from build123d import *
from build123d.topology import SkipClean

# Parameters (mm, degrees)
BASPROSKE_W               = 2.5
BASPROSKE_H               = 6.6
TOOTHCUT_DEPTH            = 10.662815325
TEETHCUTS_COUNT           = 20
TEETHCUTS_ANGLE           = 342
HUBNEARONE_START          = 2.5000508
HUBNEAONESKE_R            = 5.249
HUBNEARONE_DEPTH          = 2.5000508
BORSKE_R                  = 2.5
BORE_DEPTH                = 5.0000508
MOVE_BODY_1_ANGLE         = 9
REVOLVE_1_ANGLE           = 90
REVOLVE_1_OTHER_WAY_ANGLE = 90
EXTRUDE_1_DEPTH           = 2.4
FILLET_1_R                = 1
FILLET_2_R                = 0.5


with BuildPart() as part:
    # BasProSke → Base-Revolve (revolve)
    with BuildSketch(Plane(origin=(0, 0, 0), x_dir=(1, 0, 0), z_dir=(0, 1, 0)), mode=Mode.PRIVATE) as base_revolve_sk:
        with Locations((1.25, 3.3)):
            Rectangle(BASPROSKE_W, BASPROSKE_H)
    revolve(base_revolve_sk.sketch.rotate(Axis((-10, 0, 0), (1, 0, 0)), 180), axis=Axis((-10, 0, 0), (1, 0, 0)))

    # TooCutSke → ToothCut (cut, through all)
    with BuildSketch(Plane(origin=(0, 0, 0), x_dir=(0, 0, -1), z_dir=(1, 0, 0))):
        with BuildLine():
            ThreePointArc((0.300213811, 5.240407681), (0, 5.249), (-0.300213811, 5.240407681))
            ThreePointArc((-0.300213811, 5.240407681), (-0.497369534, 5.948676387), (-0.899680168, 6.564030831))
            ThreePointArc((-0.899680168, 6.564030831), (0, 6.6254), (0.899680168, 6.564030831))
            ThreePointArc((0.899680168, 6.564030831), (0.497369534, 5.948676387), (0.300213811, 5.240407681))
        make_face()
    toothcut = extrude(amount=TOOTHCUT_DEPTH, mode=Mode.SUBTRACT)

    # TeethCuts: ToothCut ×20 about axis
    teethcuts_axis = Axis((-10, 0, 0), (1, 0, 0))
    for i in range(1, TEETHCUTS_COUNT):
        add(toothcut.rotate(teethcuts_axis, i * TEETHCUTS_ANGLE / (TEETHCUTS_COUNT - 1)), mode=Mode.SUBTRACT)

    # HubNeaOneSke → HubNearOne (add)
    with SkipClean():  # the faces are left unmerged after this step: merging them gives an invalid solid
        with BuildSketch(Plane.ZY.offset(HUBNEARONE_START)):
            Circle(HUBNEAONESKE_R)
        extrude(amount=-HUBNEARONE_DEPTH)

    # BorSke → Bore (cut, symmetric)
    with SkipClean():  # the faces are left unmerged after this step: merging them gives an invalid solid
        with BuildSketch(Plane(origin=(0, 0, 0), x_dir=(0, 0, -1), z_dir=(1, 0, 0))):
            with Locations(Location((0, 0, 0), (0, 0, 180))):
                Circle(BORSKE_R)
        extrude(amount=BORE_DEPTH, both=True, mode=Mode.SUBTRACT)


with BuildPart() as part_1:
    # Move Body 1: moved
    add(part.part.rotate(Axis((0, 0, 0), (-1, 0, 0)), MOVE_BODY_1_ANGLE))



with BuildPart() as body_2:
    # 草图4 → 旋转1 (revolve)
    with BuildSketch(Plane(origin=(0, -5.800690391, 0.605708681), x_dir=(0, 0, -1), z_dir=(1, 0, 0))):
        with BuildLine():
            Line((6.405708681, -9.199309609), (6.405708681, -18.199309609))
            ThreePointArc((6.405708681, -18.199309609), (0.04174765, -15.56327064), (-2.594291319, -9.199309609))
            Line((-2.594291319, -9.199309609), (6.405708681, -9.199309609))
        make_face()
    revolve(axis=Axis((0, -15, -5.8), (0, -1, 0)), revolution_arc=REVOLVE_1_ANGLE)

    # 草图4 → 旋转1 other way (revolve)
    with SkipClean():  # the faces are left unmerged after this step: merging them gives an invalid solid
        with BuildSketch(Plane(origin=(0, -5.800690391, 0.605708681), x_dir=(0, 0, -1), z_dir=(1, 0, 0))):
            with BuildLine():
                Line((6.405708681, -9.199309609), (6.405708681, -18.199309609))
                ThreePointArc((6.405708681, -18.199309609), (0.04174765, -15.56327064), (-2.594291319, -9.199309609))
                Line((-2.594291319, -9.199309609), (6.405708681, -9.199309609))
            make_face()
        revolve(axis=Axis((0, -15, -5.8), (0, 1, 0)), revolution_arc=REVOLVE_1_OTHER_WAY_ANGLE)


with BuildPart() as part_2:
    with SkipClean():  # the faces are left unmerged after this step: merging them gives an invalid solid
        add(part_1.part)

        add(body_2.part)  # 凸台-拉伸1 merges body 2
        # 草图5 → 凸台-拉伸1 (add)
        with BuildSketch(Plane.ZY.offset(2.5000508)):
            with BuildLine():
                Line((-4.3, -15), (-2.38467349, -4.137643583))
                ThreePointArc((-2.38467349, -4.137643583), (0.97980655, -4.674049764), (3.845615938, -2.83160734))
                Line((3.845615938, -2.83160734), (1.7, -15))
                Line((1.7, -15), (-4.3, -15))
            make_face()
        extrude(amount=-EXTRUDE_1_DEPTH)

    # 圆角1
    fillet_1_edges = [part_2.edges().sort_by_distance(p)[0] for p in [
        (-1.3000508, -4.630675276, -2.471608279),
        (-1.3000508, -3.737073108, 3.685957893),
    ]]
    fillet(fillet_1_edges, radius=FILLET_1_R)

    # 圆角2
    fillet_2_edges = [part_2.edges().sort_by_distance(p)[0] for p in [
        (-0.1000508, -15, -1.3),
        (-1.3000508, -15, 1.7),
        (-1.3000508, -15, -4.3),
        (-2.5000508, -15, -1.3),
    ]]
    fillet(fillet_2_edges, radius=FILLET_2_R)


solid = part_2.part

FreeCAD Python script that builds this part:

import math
import FreeCAD as App
import Part
import Sketcher
Q = App.Units.Quantity


def edges_at(feature, points):
    """Names of the edges that pass closest to the given points."""
    edges = feature.Shape.Edges
    near = lambda p: min(range(len(edges)), key=lambda i: edges[i].distToShape(Part.Vertex(*p))[0])
    return sorted({f"Edge{near(p) + 1}" for p in points})

doc = App.newDocument("Part")
body = doc.addObject("PartDesign::Body", "Body")

sketch1 = body.newObject("Sketcher::SketchObject", "Sketch")
sketch1.AttachmentSupport = (doc.getObject("XZ_Plane"), [""])
sketch1.MapMode = "FlatFace"
sketch1.addGeometry([
    Part.LineSegment(App.Vector(0, -6.6, 0), App.Vector(0, 0, 0)),
    Part.LineSegment(App.Vector(0, 0, 0), App.Vector(2.5, 0, 0)),
    Part.LineSegment(App.Vector(2.5, 0, 0), App.Vector(2.5, -6.6, 0)),
    Part.LineSegment(App.Vector(2.5, -6.6, 0), App.Vector(0, -6.6, 0)),
], False)
sketch1.addConstraint([
    Sketcher.Constraint("Coincident", 0, 2, 1, 1),
    Sketcher.Constraint("Coincident", 1, 2, 2, 1),
    Sketcher.Constraint("Coincident", 2, 2, 3, 1),
    Sketcher.Constraint("Coincident", 3, 2, 0, 1),
    Sketcher.Constraint("Vertical", 0),
    Sketcher.Constraint("Horizontal", 1),
    Sketcher.Constraint("Vertical", 2),
    Sketcher.Constraint("Horizontal", 3),
    Sketcher.Constraint("Coincident", 0, 2, -1, 1),
    Sketcher.Constraint("DistanceX", 1, 1, 1, 2, Q("2.5 mm")),
    Sketcher.Constraint("DistanceY", 0, 1, 0, 2, Q("6.6 mm")),
])
revolution = body.newObject("PartDesign::Revolution", "Revolution")
revolution.Profile = sketch1
revolution.ReferenceAxis = (sketch1, ["H_Axis"])
revolution.Angle = 360

sketch2 = body.newObject("Sketcher::SketchObject", "Sketch001")
sketch2.AttachmentSupport = (doc.getObject("YZ_Plane"), [""])
sketch2.MapMode = "FlatFace"
sketch2.addGeometry([
    Part.ArcOfCircle(Part.Circle(App.Vector(0, 0, 0), App.Vector(0, 0, 1), 5.2), math.radians(-3.28), math.radians(3.28)),
    Part.ArcOfCircle(Part.Circle(App.Vector(5, -2.7, 0), App.Vector(0, 0, 1), 2.4), math.radians(48), math.radians(83)),
    Part.ArcOfCircle(Part.Circle(App.Vector(0, 0, 0), App.Vector(0, 0, 1), 6.6), math.radians(-7.8), math.radians(7.8)),
    Part.ArcOfCircle(Part.Circle(App.Vector(5, 2.7, 0), App.Vector(0, 0, 1), 2.4), math.radians(-83), math.radians(-48)),
], False)
sketch2.addConstraint([
    Sketcher.Constraint("Coincident", 0, 1, 1, 2),
    Sketcher.Constraint("Coincident", 1, 1, 2, 1),
    Sketcher.Constraint("Coincident", 2, 2, 3, 2),
    Sketcher.Constraint("Coincident", 3, 1, 0, 2),
    Sketcher.Constraint("Coincident", 0, 3, -1, 1),
    Sketcher.Constraint("Coincident", 2, 3, -1, 1),
    Sketcher.Constraint("Equal", 1, 3),
    Sketcher.Constraint("Symmetric", 1, 3, 3, 3, -1),
    Sketcher.Constraint("Radius", 1, Q("2.4 mm")),
    Sketcher.Constraint("Radius", 0, Q("5.249 mm")),
    Sketcher.Constraint("Radius", 2, Q("6.6254 mm")),
    Sketcher.Constraint("DistanceX", -1, 1, 1, 1, Q("6.564031 mm")),
    Sketcher.Constraint("DistanceY", 1, 3, 0, 1, Q("2.38339 mm")),
])
pocket1 = body.newObject("PartDesign::Pocket", "Pocket")
pocket1.Profile = sketch2
pocket1.Type = "ThroughAll"
pocket1.Reversed = True
doc.recompute()

polarpattern = body.newObject("PartDesign::PolarPattern", "PolarPattern")
polarpattern.Originals = [pocket1]
polarpattern.Axis = (doc.getObject("X_Axis"), [""])
polarpattern.Angle = 360
polarpattern.Occurrences = 20
body.Tip = polarpattern

sketch3 = body.newObject("Sketcher::SketchObject", "Sketch002")
sketch3.AttachmentSupport = (doc.getObject("YZ_Plane"), [""])
sketch3.MapMode = "FlatFace"
sketch3.AttachmentOffset = App.Placement(App.Vector(0, 0, -2.500051), App.Rotation())
sketch3.addGeometry(Part.Circle(App.Vector(0, 0, 0), App.Vector(0, 0, 1), 5), False)
sketch3.addConstraint([
    Sketcher.Constraint("Coincident", 0, 3, -1, 1),
    Sketcher.Constraint("Diameter", 0, Q("10.498 mm")),
])
pad1 = body.newObject("PartDesign::Pad", "Pad")
pad1.Profile = sketch3
pad1.Length = 2.500051

sketch4 = body.newObject("Sketcher::SketchObject", "Sketch003")
sketch4.AttachmentSupport = (doc.getObject("YZ_Plane"), [""])
sketch4.MapMode = "FlatFace"
sketch4.addGeometry(Part.Circle(App.Vector(0, 0, 0), App.Vector(0, 0, 1), 2.5), False)
sketch4.addConstraint([
    Sketcher.Constraint("Coincident", 0, 3, -1, 1),
    Sketcher.Constraint("Diameter", 0, Q("5 mm")),
])
pocket2 = body.newObject("PartDesign::Pocket", "Pocket001")
pocket2.Profile = sketch4
pocket2.Length = 10.000102
pocket2.Midplane = True
body2 = doc.addObject("PartDesign::Body", "Body001")
doc.recompute()

body.Placement = App.Placement(App.Vector(0, 0, 0), App.Rotation(App.Vector(-1, 0, 0), 9))
boolean = body2.newObject("PartDesign::Boolean", "Boolean")
boolean.Type = "Fuse"
boolean.addObjects([body])
body3 = doc.addObject("PartDesign::Body", "Body002")

sketch5 = body3.newObject("Sketcher::SketchObject", "Sketch004")
sketch5.AttachmentSupport = (doc.getObject("YZ_Plane002"), [""])
sketch5.MapMode = "FlatFace"
sketch5.addGeometry([
    Part.LineSegment(App.Vector(-24, -6, 0), App.Vector(-15, -6, 0)),
    Part.LineSegment(App.Vector(-15, -6, 0), App.Vector(-15, 3, 0)),
    Part.ArcOfCircle(Part.Circle(App.Vector(-15, -6, 0), App.Vector(0, 0, 1), 9), math.radians(90), math.radians(180)),
], False)
sketch5.addGeometry(Part.LineSegment(App.Vector(-15, -6, 0), App.Vector(-24, -6, 0)), True)
sketch5.addConstraint([
    Sketcher.Constraint("Coincident", 0, 2, 1, 1),
    Sketcher.Constraint("Coincident", 1, 2, 2, 1),
    Sketcher.Constraint("Coincident", 2, 2, 0, 1),
    Sketcher.Constraint("Horizontal", 0),
    Sketcher.Constraint("Vertical", 1),
    Sketcher.Constraint("Horizontal", 3),
    Sketcher.Constraint("Coincident", 0, 2, 2, 3),
    Sketcher.Constraint("Coincident", 3, 1, 2, 3),
    Sketcher.Constraint("Equal", 0, 3),
    Sketcher.Constraint("Radius", 2, Q("9 mm")),
    Sketcher.Constraint("DistanceX", 2, 3, -1, 1, Q("15 mm")),
    Sketcher.Constraint("DistanceY", 2, 3, -1, 1, Q("5.8 mm")),
])
revolution2 = body3.newObject("PartDesign::Revolution", "Revolution001")
revolution2.Profile = sketch5
revolution2.ReferenceAxis = (sketch5, ["Axis0"])
revolution2.Angle = 90

sketch6 = body3.newObject("Sketcher::SketchObject", "Sketch005")
sketch6.AttachmentSupport = (doc.getObject("YZ_Plane002"), [""])
sketch6.MapMode = "FlatFace"
sketch6.addGeometry([
    Part.LineSegment(App.Vector(-24, -6, 0), App.Vector(-15, -6, 0)),
    Part.LineSegment(App.Vector(-15, -6, 0), App.Vector(-15, 3, 0)),
    Part.ArcOfCircle(Part.Circle(App.Vector(-15, -6, 0), App.Vector(0, 0, 1), 9), math.radians(90), math.radians(180)),
], False)
sketch6.addGeometry(Part.LineSegment(App.Vector(-24, -6, 0), App.Vector(-15, -6, 0)), True)
sketch6.addConstraint([
    Sketcher.Constraint("Coincident", 0, 2, 1, 1),
    Sketcher.Constraint("Coincident", 1, 2, 2, 1),
    Sketcher.Constraint("Coincident", 2, 2, 0, 1),
    Sketcher.Constraint("Horizontal", 0),
    Sketcher.Constraint("Vertical", 1),
    Sketcher.Constraint("Horizontal", 3),
    Sketcher.Constraint("Coincident", 0, 2, 2, 3),
    Sketcher.Constraint("Coincident", 3, 1, 2, 2),
    Sketcher.Constraint("Vertical", 1, 2, 3, 2),
    Sketcher.Constraint("Radius", 2, Q("9 mm")),
    Sketcher.Constraint("DistanceX", 2, 3, -1, 1, Q("15 mm")),
    Sketcher.Constraint("DistanceY", 2, 3, -1, 1, Q("5.8 mm")),
])
revolution3 = body3.newObject("PartDesign::Revolution", "Revolution002")
revolution3.Profile = sketch6
revolution3.ReferenceAxis = (sketch6, ["Axis0"])
revolution3.Angle = 90
body2.AllowCompound = True
doc.recompute()

boolean2 = body2.newObject("PartDesign::Boolean", "Boolean001")
boolean2.Type = "Fuse"
boolean2.addObjects([body3])

sketch7 = body2.newObject("Sketcher::SketchObject", "Sketch006")
sketch7.AttachmentSupport = (doc.getObject("YZ_Plane001"), [""])
sketch7.MapMode = "FlatFace"
sketch7.AttachmentOffset = App.Placement(App.Vector(0, 0, -2.500051), App.Rotation())
sketch7.addGeometry([
    Part.LineSegment(App.Vector(-4.1, -2.4, 0), App.Vector(-15, -4.3, 0)),
    Part.LineSegment(App.Vector(-15, -4.3, 0), App.Vector(-15, 1.7, 0)),
    Part.LineSegment(App.Vector(-15, 1.7, 0), App.Vector(-2.8, 3.8, 0)),
    Part.ArcOfCircle(Part.Circle(App.Vector(0, 0, 0), App.Vector(0, 0, 1), 4.8), math.radians(126), math.radians(210)),
], False)
sketch7.addConstraint([
    Sketcher.Constraint("Coincident", 0, 2, 1, 1),
    Sketcher.Constraint("Coincident", 1, 2, 2, 1),
    Sketcher.Constraint("Coincident", 2, 2, 3, 1),
    Sketcher.Constraint("Coincident", 3, 2, 0, 1),
    Sketcher.Constraint("Vertical", 1),
    Sketcher.Constraint("Coincident", 3, 3, -1, 1),
    Sketcher.Constraint("Parallel", 0, 2),
    Sketcher.Constraint("DistanceY", 1, 1, 1, 2, Q("6 mm")),
    Sketcher.Constraint("Angle", 0, Q("-170 deg")),
    Sketcher.Constraint("DistanceX", 0, 2, -1, 1, Q("15 mm")),
    Sketcher.Constraint("DistanceY", 0, 2, -1, 1, Q("4.3 mm")),
    Sketcher.Constraint("Radius", 3, Q("4.775643 mm")),
])
pad2 = body2.newObject("PartDesign::Pad", "Pad001")
pad2.Profile = sketch7
pad2.Length = 2.4
doc.recompute()

fillet = body2.newObject("PartDesign::Fillet", "Fillet")
fillet.Base = (pad2, edges_at(pad2, [(-1.3, -4.631, -2.472), (-1.3, -3.737, 3.686)]))
fillet.Radius = 1
doc.recompute()

fillet2 = body2.newObject("PartDesign::Fillet", "Fillet001")
fillet2.Base = (fillet, edges_at(fillet, [
    (-0.1, -15, -1.3),
    (-1.3, -15, 1.7),
    (-1.3, -15, -4.3),
    (-2.5, -15, -1.3),
]))
fillet2.Radius = 0.5

doc.recompute()
